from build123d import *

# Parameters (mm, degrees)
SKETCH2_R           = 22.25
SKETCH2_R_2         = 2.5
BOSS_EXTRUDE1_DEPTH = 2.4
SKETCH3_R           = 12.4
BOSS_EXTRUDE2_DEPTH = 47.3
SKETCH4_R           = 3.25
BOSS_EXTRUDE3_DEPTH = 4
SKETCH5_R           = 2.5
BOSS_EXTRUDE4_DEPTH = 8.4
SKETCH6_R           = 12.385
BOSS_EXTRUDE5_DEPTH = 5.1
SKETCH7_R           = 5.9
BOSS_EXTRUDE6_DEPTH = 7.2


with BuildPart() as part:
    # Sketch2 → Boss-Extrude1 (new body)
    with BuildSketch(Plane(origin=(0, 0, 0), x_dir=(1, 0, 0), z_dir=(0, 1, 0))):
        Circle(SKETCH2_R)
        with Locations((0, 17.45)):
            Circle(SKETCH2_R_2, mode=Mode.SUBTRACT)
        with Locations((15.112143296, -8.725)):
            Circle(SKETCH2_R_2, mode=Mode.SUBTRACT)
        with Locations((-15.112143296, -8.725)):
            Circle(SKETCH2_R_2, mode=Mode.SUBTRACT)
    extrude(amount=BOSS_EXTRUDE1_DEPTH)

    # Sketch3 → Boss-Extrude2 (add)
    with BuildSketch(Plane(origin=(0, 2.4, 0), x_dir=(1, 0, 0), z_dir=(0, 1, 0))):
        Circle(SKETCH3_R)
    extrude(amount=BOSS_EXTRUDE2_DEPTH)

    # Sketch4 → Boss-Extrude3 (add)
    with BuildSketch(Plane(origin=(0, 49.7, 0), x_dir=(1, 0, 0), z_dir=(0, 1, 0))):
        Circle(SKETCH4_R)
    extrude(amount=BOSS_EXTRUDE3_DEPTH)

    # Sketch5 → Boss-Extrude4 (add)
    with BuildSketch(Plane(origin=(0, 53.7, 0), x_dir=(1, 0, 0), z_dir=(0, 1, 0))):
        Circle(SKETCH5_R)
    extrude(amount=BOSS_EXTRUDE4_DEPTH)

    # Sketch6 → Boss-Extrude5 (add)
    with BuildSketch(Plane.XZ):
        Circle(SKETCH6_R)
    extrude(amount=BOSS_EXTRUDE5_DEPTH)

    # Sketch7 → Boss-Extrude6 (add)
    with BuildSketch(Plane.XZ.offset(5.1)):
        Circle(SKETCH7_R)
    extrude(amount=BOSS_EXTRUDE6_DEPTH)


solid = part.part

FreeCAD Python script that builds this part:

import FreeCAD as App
import Part
import Sketcher

V = App.Vector
Q = App.Units.Quantity

doc = App.newDocument("Part")
body = doc.addObject("PartDesign::Body", "Body")

# Sketch on XZ plane
sketch1 = doc.addObject("Sketcher::SketchObject", "Sketch")
body.addObject(sketch1)
sketch1.AttachmentSupport = (doc.XZ_Plane, [""])
sketch1.MapMode = "FlatFace"
sketch1.addGeometry(Part.Circle(V(0, 0, 0), V(0, 0, 1), 22.2), False)
sketch1.addGeometry(Part.Circle(V(-15.1, 8.7, 0), V(0, 0, 1), 2.5), False)
sketch1.addGeometry(Part.Circle(V(15.1, 8.7, 0), V(0, 0, 1), 2.5), False)
sketch1.addGeometry(Part.Circle(V(0, -17.4, 0), V(0, 0, 1), 2.5), False)
sketch1.addConstraint(Sketcher.Constraint("Coincident", 0, 3, -1, 1))
sketch1.addConstraint(Sketcher.Constraint("Equal", 1, 2))
sketch1.addConstraint(Sketcher.Constraint("Equal", 2, 3))
sketch1.addConstraint(Sketcher.Constraint("Symmetric", 1, 3, 2, 3, -2))
sketch1.addConstraint(Sketcher.Constraint("PointOnObject", 3, 3, -2))
sketch1.addConstraint(Sketcher.Constraint("Diameter", 1, Q("5 mm")))
sketch1.addConstraint(Sketcher.Constraint("Diameter", 0, Q("44.5 mm")))
sketch1.addConstraint(Sketcher.Constraint("DistanceY", 3, 3, -1, 1, Q("17.45 mm")))
sketch1.addConstraint(Sketcher.Constraint("DistanceY", -1, 1, 1, 3, Q("8.725 mm")))
sketch1.addConstraint(Sketcher.Constraint("DistanceX", 1, 3, -1, 1, Q("15.112143 mm")))
pad1 = doc.addObject("PartDesign::Pad", "Pad")
body.addObject(pad1)
pad1.Profile = sketch1
pad1.Length = 2.4
pad1.Reversed = True

# Sketch on XZ plane
sketch2 = doc.addObject("Sketcher::SketchObject", "Sketch001")
body.addObject(sketch2)
sketch2.AttachmentSupport = (doc.XZ_Plane, [""])
sketch2.MapMode = "FlatFace"
sketch2.AttachmentOffset = App.Placement(V(0, 0, -2.4), App.Rotation())
sketch2.addGeometry(Part.Circle(V(0, 0, 0), V(0, 0, 1), 12), False)
sketch2.addConstraint(Sketcher.Constraint("Coincident", 0, 3, -1, 1))
sketch2.addConstraint(Sketcher.Constraint("Diameter", 0, Q("24.8 mm")))
pad2 = doc.addObject("PartDesign::Pad", "Pad001")
body.addObject(pad2)
pad2.Profile = sketch2
pad2.Length = 47.3
pad2.Reversed = True

# Sketch on XZ plane
sketch3 = doc.addObject("Sketcher::SketchObject", "Sketch002")
body.addObject(sketch3)
sketch3.AttachmentSupport = (doc.XZ_Plane, [""])
sketch3.MapMode = "FlatFace"
sketch3.AttachmentOffset = App.Placement(V(0, 0, -49.7), App.Rotation())
sketch3.addGeometry(Part.Circle(V(0, 0, 0), V(0, 0, 1), 3.2), False)
sketch3.addConstraint(Sketcher.Constraint("Coincident", 0, 3, -1, 1))
sketch3.addConstraint(Sketcher.Constraint("Diameter", 0, Q("6.5 mm")))
pad3 = doc.addObject("PartDesign::Pad", "Pad002")
body.addObject(pad3)
pad3.Profile = sketch3
pad3.Length = 4
pad3.Reversed = True

# Sketch on XZ plane
sketch4 = doc.addObject("Sketcher::SketchObject", "Sketch003")
body.addObject(sketch4)
sketch4.AttachmentSupport = (doc.XZ_Plane, [""])
sketch4.MapMode = "FlatFace"
sketch4.AttachmentOffset = App.Placement(V(0, 0, -53.7), App.Rotation())
sketch4.addGeometry(Part.Circle(V(0, 0, 0), V(0, 0, 1), 2.5), False)
sketch4.addConstraint(Sketcher.Constraint("Coincident", 0, 3, -1, 1))
sketch4.addConstraint(Sketcher.Constraint("Diameter", 0, Q("5 mm")))
pad4 = doc.addObject("PartDesign::Pad", "Pad003")
body.addObject(pad4)
pad4.Profile = sketch4
pad4.Length = 8.4
pad4.Reversed = True

# Sketch on XZ plane
sketch5 = doc.addObject("Sketcher::SketchObject", "Sketch004")
body.addObject(sketch5)
sketch5.AttachmentSupport = (doc.XZ_Plane, [""])
sketch5.MapMode = "FlatFace"
sketch5.addGeometry(Part.Circle(V(0, 0, 0), V(0, 0, 1), 12), False)
sketch5.addConstraint(Sketcher.Constraint("Coincident", 0, 3, -1, 1))
sketch5.addConstraint(Sketcher.Constraint("Diameter", 0, Q("24.77 mm")))
pad5 = doc.addObject("PartDesign::Pad", "Pad004")
body.addObject(pad5)
pad5.Profile = sketch5
pad5.Length = 5.1

# Sketch on XZ plane
sketch6 = doc.addObject("Sketcher::SketchObject", "Sketch005")
body.addObject(sketch6)
sketch6.AttachmentSupport = (doc.XZ_Plane, [""])
sketch6.MapMode = "FlatFace"
sketch6.AttachmentOffset = App.Placement(V(0, 0, 5.1), App.Rotation())
sketch6.addGeometry(Part.Circle(V(0, 0, 0), V(0, 0, 1), 6), False)
sketch6.addConstraint(Sketcher.Constraint("Coincident", 0, 3, -1, 1))
sketch6.addConstraint(Sketcher.Constraint("Diameter", 0, Q("11.8 mm")))
pad6 = doc.addObject("PartDesign::Pad", "Pad005")
body.addObject(pad6)
pad6.Profile = sketch6
pad6.Length = 7.2

doc.recompute()
